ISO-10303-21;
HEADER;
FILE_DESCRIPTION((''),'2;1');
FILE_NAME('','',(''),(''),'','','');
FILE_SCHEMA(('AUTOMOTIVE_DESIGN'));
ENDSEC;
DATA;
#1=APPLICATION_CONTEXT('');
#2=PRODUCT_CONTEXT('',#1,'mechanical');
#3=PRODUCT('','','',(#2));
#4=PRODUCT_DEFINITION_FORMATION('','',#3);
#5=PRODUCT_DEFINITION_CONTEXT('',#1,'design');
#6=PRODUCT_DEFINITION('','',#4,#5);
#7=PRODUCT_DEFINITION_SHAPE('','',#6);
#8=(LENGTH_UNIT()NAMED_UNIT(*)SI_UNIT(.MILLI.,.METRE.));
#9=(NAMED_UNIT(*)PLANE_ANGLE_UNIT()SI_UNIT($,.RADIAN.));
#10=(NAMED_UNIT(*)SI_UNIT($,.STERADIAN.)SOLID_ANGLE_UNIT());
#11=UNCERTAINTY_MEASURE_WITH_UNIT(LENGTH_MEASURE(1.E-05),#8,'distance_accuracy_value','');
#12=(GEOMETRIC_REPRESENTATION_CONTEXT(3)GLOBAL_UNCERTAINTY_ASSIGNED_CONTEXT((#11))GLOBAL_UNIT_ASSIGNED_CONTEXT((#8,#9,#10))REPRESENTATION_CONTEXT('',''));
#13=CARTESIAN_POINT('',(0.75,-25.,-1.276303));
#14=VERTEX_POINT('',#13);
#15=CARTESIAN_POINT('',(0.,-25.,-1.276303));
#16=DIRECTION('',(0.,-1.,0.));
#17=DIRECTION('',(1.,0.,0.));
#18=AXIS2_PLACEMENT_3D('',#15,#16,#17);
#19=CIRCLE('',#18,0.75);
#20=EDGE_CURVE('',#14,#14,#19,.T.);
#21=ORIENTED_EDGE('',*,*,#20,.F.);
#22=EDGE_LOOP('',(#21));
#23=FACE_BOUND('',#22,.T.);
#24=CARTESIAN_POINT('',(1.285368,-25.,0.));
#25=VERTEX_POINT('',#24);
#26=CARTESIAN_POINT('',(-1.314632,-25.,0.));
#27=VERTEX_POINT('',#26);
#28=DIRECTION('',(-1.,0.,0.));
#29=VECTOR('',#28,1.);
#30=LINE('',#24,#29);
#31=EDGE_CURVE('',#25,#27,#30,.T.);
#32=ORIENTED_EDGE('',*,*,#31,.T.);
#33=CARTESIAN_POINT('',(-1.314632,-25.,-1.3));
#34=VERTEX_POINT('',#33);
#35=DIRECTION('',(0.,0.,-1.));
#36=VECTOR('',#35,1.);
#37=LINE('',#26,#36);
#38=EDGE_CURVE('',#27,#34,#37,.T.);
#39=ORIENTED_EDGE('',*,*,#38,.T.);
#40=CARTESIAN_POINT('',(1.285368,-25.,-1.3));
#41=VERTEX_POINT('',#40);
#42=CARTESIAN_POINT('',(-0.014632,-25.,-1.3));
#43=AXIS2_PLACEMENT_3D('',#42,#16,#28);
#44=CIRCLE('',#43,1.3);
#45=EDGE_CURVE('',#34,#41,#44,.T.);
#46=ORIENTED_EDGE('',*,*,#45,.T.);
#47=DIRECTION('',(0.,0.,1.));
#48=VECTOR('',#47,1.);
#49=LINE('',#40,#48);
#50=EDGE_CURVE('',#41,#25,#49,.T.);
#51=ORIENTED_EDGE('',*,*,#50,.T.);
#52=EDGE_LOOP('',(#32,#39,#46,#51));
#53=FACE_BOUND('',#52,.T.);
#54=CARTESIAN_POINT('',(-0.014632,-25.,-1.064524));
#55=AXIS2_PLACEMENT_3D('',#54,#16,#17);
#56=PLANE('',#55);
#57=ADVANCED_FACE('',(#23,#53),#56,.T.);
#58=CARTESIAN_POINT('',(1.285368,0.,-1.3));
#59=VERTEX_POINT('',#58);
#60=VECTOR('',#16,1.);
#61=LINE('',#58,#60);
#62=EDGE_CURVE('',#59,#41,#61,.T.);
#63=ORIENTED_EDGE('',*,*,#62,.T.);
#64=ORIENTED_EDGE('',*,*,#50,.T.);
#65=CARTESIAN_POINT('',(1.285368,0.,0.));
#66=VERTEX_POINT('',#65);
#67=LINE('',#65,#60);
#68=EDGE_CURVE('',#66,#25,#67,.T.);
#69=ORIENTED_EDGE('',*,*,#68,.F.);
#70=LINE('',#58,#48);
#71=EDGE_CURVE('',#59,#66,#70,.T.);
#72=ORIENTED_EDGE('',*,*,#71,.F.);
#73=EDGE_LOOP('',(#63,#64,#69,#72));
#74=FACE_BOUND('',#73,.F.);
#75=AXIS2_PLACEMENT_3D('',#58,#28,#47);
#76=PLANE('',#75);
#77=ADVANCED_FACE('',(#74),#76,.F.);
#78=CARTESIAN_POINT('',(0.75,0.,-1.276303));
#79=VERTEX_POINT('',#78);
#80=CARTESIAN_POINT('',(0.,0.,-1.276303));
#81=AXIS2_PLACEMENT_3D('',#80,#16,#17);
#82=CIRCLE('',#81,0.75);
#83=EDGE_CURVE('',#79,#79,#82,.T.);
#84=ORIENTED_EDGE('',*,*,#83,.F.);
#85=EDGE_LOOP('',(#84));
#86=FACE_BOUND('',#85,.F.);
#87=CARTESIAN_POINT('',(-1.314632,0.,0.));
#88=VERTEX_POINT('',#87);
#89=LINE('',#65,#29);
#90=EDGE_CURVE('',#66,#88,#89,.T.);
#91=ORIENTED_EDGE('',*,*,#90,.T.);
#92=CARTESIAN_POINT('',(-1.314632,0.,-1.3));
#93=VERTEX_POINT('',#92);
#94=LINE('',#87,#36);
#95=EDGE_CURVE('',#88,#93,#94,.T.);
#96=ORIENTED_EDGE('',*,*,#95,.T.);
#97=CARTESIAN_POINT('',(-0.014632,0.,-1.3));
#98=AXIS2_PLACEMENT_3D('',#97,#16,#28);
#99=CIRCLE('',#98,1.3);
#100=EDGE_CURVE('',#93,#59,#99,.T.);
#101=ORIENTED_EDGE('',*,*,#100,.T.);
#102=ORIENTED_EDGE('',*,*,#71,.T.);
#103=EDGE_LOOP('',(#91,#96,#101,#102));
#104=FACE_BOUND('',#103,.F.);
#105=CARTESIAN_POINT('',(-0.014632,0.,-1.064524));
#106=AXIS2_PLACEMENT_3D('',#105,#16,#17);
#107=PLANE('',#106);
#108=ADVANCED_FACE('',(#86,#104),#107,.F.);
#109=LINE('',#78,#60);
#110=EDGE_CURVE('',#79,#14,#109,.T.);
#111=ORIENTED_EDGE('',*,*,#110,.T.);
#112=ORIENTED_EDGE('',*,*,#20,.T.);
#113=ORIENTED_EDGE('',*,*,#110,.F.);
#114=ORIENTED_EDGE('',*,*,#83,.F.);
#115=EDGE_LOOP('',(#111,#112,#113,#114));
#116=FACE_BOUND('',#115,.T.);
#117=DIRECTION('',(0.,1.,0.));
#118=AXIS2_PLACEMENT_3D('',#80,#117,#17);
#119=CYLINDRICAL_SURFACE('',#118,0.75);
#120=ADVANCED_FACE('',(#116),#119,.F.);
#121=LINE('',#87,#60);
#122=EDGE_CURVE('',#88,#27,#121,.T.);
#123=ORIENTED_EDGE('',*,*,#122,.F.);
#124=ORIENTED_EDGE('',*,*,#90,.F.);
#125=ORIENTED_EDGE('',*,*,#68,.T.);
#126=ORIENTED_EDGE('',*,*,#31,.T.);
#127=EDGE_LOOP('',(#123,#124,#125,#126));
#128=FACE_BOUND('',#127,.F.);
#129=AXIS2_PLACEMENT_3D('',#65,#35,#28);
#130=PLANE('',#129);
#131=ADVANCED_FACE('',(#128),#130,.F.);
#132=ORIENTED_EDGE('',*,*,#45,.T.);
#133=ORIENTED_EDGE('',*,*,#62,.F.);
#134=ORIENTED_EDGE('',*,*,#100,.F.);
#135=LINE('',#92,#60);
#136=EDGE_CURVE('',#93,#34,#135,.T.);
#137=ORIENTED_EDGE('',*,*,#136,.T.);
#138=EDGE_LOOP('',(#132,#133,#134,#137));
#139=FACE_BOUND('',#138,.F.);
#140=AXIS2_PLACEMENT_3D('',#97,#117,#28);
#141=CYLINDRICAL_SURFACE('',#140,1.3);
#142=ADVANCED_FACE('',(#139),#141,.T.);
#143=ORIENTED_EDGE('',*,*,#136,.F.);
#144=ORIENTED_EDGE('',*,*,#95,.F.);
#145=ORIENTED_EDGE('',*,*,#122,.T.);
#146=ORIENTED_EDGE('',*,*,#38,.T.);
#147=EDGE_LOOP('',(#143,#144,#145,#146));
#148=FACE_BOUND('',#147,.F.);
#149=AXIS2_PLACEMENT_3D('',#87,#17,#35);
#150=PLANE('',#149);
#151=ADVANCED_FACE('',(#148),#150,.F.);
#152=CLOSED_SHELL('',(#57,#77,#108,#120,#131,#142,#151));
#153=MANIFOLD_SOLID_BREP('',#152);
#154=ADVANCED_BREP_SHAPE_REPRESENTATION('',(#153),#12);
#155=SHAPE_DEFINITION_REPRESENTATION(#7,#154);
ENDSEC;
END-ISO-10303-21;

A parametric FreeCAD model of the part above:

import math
import FreeCAD as App
import Part
import Sketcher

doc = App.newDocument("Part")
body = doc.addObject("PartDesign::Body", "Body")

# Sketch on XZ plane
sketch1 = doc.addObject("Sketcher::SketchObject", "Sketch")
body.addObject(sketch1)
sketch1.AttachmentSupport = (doc.XZ_Plane, [""])
sketch1.MapMode = "FlatFace"
sketch1.addGeometry(Part.LineSegment(App.Vector(1.3, 0, 0), App.Vector(-1.3, 0, 0)), False)
sketch1.addGeometry(Part.LineSegment(App.Vector(-1.3, 0, 0), App.Vector(-1.3, -1.3, 0)), False)
sketch1.addGeometry(Part.ArcOfCircle(Part.Circle(App.Vector(0, -1.3, 0), App.Vector(0, 0, 1), 1.3), math.radians(180), math.radians(360)), False)
sketch1.addGeometry(Part.LineSegment(App.Vector(1.3, -1.3, 0), App.Vector(1.3, 0, 0)), False)
sketch1.addConstraint(Sketcher.Constraint("Coincident", 0, 2, 1, 1))
sketch1.addConstraint(Sketcher.Constraint("Tangent", 1, 2, 2, 1))
sketch1.addConstraint(Sketcher.Constraint("Tangent", 2, 2, 3, 1))
sketch1.addConstraint(Sketcher.Constraint("Coincident", 3, 2, 0, 1))
sketch1.addConstraint(Sketcher.Constraint("Horizontal", 0))
sketch1.addConstraint(Sketcher.Constraint("Vertical", 1))
sketch1.addConstraint(Sketcher.Constraint("Vertical", 3))
sketch1.addConstraint(Sketcher.Constraint("PointOnObject", 0, 2, -1))
sketch1.addConstraint(Sketcher.Constraint("Radius", 2, 1.3))
sketch1.addConstraint(Sketcher.Constraint("DistanceY", 1, 2, 1, 1, 1.3))
sketch1.addConstraint(Sketcher.Constraint("DistanceX", 2, 3, -1, 1, 0.014632))
pad1 = doc.addObject("PartDesign::Pad", "Pad")
body.addObject(pad1)
pad1.Profile = sketch1
pad1.Length = 25

# Sketch on XZ plane
sketch2 = doc.addObject("Sketcher::SketchObject", "Sketch001")
body.addObject(sketch2)
sketch2.AttachmentSupport = (doc.XZ_Plane, [""])
sketch2.MapMode = "FlatFace"
sketch2.addGeometry(Part.Circle(App.Vector(0, -1.3, 0), App.Vector(0, 0, 1), 0.8), False)
sketch2.addConstraint(Sketcher.Constraint("PointOnObject", 0, 3, -2))
sketch2.addConstraint(Sketcher.Constraint("Diameter", 0, 1.5))
sketch2.addConstraint(Sketcher.Constraint("DistanceY", 0, 3, -1, 1, 1.276303))
pocket1 = doc.addObject("PartDesign::Pocket", "Pocket")
body.addObject(pocket1)
pocket1.Profile = sketch2
pocket1.Length = 25
pocket1.Reversed = True

doc.recompute()
